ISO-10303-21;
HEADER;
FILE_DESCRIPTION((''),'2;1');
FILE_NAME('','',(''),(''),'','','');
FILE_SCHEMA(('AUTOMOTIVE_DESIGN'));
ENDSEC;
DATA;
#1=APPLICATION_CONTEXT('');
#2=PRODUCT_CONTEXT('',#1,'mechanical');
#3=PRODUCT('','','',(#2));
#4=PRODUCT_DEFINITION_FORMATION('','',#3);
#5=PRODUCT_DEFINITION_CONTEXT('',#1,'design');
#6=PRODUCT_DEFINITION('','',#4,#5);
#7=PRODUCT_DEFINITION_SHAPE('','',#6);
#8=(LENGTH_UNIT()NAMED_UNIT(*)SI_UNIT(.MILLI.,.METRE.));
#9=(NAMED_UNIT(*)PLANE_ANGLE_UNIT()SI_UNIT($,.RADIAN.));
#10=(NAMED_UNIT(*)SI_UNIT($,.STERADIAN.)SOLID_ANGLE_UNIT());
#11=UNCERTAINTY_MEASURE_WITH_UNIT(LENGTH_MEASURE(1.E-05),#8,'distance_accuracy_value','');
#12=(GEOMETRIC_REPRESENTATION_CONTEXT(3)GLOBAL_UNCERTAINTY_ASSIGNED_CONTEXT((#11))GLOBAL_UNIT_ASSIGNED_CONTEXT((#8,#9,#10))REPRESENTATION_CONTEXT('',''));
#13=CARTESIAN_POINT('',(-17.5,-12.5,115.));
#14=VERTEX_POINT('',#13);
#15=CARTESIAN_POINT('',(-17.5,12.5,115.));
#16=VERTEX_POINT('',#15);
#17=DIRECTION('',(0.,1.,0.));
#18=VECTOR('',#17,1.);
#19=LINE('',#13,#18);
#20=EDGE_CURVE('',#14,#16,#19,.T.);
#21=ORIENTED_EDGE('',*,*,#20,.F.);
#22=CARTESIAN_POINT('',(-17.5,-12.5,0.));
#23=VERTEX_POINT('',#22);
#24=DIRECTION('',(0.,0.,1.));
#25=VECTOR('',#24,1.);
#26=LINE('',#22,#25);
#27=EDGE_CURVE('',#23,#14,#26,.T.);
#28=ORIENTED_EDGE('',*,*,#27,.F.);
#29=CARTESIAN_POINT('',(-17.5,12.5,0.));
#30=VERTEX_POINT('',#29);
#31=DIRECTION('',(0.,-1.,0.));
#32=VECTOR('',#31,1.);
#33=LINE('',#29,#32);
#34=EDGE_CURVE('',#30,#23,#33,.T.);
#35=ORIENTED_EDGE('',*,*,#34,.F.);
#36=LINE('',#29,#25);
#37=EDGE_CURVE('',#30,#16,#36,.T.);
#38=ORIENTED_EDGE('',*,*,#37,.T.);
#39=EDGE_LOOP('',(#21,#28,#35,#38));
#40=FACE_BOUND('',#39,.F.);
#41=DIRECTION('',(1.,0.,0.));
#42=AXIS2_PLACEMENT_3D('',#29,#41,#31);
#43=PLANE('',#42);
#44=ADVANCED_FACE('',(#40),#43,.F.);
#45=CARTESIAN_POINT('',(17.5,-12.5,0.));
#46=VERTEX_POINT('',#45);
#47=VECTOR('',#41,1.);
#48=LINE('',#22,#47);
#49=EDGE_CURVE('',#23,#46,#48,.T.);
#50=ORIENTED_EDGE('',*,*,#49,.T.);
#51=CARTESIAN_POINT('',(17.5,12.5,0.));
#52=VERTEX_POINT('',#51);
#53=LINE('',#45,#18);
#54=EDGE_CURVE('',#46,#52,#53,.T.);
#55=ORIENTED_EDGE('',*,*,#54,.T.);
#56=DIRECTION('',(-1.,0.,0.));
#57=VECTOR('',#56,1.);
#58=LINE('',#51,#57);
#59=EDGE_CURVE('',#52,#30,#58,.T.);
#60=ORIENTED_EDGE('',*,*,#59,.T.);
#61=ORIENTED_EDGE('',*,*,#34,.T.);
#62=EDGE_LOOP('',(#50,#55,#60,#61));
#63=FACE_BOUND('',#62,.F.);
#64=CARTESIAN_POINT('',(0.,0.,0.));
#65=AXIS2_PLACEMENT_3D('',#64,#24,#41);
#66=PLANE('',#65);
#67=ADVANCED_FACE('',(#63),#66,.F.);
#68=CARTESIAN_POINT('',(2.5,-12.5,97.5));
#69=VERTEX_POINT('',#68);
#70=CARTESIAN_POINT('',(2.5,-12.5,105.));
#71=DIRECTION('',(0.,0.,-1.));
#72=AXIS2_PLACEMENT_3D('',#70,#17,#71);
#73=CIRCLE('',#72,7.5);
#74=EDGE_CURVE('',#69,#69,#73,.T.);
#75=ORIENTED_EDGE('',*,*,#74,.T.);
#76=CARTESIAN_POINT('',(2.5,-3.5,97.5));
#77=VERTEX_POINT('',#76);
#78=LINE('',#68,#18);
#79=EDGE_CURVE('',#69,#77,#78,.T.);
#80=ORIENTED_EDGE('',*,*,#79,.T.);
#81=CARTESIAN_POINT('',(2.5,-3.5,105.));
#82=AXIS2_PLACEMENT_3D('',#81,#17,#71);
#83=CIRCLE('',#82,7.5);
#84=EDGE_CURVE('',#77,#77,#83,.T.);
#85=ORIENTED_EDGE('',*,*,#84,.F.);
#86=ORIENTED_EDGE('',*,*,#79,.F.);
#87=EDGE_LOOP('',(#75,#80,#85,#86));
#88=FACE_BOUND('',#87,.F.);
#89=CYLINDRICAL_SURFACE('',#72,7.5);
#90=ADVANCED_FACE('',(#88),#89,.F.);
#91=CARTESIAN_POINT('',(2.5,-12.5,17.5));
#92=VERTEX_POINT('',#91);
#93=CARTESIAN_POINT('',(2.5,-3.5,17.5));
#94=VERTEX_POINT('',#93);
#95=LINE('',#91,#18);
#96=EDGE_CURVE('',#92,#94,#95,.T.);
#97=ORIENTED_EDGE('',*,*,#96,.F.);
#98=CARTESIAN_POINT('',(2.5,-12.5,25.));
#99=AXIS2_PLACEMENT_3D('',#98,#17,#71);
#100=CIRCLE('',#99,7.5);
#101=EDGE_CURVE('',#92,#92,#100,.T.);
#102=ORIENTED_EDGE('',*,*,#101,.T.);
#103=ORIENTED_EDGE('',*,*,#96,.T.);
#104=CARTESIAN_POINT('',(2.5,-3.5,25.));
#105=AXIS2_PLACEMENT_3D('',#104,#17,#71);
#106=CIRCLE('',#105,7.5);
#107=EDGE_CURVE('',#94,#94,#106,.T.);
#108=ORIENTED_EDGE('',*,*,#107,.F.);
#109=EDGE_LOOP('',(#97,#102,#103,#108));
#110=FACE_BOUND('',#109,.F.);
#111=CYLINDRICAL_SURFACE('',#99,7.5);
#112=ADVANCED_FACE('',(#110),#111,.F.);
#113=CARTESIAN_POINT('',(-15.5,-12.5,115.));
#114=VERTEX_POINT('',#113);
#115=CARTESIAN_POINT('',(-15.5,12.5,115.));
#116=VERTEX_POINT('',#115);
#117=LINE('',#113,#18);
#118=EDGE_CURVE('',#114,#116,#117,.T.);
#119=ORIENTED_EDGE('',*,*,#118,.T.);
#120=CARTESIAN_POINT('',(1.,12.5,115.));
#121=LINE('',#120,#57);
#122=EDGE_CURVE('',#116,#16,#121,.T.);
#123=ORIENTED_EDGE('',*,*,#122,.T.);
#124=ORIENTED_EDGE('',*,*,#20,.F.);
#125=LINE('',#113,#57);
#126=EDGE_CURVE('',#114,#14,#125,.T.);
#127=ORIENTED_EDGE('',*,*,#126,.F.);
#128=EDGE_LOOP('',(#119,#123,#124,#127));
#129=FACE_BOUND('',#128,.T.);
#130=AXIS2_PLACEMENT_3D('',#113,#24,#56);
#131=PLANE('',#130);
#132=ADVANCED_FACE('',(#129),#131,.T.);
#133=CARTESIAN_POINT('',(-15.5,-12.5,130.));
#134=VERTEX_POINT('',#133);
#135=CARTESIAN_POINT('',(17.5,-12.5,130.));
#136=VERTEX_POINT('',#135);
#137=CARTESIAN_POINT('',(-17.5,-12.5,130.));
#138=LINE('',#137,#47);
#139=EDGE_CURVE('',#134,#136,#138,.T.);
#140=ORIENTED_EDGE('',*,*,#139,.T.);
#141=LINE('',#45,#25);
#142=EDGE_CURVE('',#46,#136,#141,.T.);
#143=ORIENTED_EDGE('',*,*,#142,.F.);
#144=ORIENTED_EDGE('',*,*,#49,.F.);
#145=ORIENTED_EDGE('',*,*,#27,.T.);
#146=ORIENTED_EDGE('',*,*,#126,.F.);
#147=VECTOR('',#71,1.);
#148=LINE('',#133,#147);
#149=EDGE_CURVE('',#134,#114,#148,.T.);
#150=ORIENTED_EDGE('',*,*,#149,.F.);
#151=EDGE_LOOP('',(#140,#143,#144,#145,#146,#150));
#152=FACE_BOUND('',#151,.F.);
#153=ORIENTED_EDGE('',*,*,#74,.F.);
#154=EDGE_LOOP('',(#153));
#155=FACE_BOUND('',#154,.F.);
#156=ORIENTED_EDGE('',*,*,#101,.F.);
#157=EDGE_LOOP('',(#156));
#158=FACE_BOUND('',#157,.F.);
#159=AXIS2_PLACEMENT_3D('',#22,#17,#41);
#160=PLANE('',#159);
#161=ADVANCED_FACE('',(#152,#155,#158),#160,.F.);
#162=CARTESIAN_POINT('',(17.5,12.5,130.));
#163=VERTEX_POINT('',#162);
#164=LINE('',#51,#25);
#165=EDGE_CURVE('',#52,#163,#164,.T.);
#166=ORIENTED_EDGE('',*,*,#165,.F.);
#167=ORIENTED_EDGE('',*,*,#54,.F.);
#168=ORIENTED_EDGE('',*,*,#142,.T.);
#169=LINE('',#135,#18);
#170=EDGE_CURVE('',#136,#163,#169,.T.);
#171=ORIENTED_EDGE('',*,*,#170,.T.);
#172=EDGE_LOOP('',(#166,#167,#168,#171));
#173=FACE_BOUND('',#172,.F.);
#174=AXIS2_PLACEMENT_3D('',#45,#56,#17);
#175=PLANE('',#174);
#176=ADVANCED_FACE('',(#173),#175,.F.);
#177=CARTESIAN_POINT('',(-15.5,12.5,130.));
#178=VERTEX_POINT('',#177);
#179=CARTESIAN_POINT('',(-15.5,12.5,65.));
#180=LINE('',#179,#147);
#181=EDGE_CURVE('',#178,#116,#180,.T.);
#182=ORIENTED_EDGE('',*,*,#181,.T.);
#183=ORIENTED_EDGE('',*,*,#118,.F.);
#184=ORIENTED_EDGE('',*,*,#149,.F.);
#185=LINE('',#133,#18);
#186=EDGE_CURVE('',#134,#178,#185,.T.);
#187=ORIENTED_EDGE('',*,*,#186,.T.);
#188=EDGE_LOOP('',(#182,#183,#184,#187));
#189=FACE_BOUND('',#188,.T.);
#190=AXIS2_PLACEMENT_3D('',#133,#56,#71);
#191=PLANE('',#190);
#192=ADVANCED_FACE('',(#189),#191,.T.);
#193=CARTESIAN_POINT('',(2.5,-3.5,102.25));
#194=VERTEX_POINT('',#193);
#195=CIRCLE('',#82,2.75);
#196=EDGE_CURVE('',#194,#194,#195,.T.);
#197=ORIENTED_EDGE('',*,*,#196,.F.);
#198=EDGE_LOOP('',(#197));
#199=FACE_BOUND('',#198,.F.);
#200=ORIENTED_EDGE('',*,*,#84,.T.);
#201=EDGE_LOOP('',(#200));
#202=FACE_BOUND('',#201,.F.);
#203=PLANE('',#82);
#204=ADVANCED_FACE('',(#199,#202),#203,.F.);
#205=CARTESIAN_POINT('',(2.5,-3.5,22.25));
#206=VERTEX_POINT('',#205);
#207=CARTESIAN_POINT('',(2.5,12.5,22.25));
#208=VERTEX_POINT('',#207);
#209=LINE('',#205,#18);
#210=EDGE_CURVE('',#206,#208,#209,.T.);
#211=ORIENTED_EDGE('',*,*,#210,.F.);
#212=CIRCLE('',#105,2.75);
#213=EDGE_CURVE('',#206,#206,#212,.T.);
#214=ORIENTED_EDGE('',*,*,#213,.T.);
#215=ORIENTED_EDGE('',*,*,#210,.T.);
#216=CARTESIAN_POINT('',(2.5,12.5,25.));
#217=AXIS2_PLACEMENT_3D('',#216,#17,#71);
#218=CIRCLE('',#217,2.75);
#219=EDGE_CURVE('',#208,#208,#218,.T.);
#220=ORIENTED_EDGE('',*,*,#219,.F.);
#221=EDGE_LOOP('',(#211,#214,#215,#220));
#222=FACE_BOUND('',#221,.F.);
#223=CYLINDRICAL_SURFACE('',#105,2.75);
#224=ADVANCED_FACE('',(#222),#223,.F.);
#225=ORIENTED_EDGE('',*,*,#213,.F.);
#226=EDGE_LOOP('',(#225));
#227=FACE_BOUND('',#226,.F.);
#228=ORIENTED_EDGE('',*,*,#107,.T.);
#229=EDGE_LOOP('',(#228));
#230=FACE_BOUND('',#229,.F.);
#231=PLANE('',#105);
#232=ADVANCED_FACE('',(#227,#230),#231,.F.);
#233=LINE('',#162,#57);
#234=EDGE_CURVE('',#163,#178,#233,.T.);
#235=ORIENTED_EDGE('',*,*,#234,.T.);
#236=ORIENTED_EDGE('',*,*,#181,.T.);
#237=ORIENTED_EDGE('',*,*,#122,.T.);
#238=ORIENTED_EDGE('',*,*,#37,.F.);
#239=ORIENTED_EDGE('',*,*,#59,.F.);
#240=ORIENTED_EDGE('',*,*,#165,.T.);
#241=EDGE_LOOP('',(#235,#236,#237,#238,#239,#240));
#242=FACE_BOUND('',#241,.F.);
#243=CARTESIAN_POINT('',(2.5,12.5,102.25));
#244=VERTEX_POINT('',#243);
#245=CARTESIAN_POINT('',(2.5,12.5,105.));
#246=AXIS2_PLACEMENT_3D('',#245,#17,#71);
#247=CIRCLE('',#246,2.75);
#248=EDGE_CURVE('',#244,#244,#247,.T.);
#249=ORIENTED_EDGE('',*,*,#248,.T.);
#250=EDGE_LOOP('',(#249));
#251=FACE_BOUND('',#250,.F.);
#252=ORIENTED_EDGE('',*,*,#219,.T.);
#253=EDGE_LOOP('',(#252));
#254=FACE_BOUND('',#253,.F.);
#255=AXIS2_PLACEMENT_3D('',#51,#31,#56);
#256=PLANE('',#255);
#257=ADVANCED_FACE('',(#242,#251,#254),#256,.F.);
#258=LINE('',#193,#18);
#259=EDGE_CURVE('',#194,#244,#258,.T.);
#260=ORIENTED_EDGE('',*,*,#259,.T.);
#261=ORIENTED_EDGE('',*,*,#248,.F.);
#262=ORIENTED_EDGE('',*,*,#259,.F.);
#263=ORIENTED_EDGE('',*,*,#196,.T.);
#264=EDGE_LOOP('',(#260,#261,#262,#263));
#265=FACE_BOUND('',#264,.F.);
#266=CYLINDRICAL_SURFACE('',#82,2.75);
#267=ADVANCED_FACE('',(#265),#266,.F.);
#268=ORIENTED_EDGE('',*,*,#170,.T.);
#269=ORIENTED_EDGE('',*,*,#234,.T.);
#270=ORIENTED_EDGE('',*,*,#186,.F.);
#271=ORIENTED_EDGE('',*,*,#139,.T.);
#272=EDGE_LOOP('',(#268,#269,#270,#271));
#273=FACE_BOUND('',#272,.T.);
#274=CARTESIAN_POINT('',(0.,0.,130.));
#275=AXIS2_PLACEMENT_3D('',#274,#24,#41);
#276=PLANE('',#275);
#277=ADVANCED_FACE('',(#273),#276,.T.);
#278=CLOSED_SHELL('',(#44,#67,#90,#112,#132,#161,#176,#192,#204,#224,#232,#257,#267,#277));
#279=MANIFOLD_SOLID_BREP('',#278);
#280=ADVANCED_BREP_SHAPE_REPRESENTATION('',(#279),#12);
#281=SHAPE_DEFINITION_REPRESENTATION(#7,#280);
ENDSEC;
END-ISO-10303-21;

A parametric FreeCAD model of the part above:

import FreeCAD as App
import Part
import Sketcher

V = App.Vector

doc = App.newDocument("Part")
params = doc.addObject("Spreadsheet::Sheet", "Params")
for row, (alias, value) in enumerate([
    ("sketch1_width", "35 mm"),
    ("sketch1_height", "25 mm"),
    ("pad1_length", "130 mm"),
    ("sketch2_width", "2 mm"),
    ("sketch2_height", "15 mm"),
    ("sketch3_diameter", "5.5 mm"),
    ("hole_diameter", "5.5 mm"),
    ("hole_cbore_diameter", "15 mm"),
    ("hole_cbore_depth", "9 mm"),
], start=1):
    params.set(f"A{row}", alias)
    params.set(f"B{row}", "=" + value)
    params.setAlias(f"B{row}", alias)

body = doc.addObject("PartDesign::Body", "Body")

sketch1 = body.newObject("Sketcher::SketchObject", "Sketch")
sketch1.AttachmentSupport = (doc.getObject("XY_Plane"), [""])
sketch1.MapMode = "FlatFace"
sketch1.addGeometry(Part.LineSegment(V(-17.5, 12.5, 0), V(-17.5, -12.5, 0)), False)
sketch1.addGeometry(Part.LineSegment(V(-17.5, -12.5, 0), V(17.5, -12.5, 0)), False)
sketch1.addGeometry(Part.LineSegment(V(17.5, -12.5, 0), V(17.5, 12.5, 0)), False)
sketch1.addGeometry(Part.LineSegment(V(17.5, 12.5, 0), V(-17.5, 12.5, 0)), False)
sketch1.addConstraint(Sketcher.Constraint("Coincident", 0, 2, 1, 1))
sketch1.addConstraint(Sketcher.Constraint("Coincident", 1, 2, 2, 1))
sketch1.addConstraint(Sketcher.Constraint("Coincident", 2, 2, 3, 1))
sketch1.addConstraint(Sketcher.Constraint("Coincident", 3, 2, 0, 1))
sketch1.addConstraint(Sketcher.Constraint("Vertical", 0))
sketch1.addConstraint(Sketcher.Constraint("Horizontal", 1))
sketch1.addConstraint(Sketcher.Constraint("Vertical", 2))
sketch1.addConstraint(Sketcher.Constraint("Horizontal", 3))
sketch1.addConstraint(Sketcher.Constraint("Symmetric", 0, 2, 2, 2, -1, 1))
sketch1.addConstraint(Sketcher.Constraint("DistanceX", 1, 1, 1, 2, 35.0))
sketch1.addConstraint(Sketcher.Constraint("DistanceY", 0, 2, 0, 1, 25.0))
sketch1.setExpression("Constraints[9]", "Params.sketch1_width")
sketch1.setExpression("Constraints[10]", "Params.sketch1_height")
pad1 = body.newObject("PartDesign::Pad", "Pad")
pad1.Profile = sketch1
pad1.setExpression("Length", "Params.pad1_length")

sketch2 = body.newObject("Sketcher::SketchObject", "Sketch001")
sketch2.AttachmentSupport = (doc.getObject("XZ_Plane"), [""])
sketch2.MapMode = "FlatFace"
sketch2.AttachmentOffset = App.Placement(V(0, 0, 12.5), App.Rotation())
sketch2.addGeometry(Part.LineSegment(V(-17.5, 115, 0), V(-15.5, 115, 0)), False)
sketch2.addGeometry(Part.LineSegment(V(-15.5, 115, 0), V(-15.5, 130, 0)), False)
sketch2.addGeometry(Part.LineSegment(V(-15.5, 130, 0), V(-17.5, 130, 0)), False)
sketch2.addGeometry(Part.LineSegment(V(-17.5, 130, 0), V(-17.5, 115, 0)), False)
sketch2.addConstraint(Sketcher.Constraint("Coincident", 0, 2, 1, 1))
sketch2.addConstraint(Sketcher.Constraint("Coincident", 1, 2, 2, 1))
sketch2.addConstraint(Sketcher.Constraint("Coincident", 2, 2, 3, 1))
sketch2.addConstraint(Sketcher.Constraint("Coincident", 3, 2, 0, 1))
sketch2.addConstraint(Sketcher.Constraint("Horizontal", 0))
sketch2.addConstraint(Sketcher.Constraint("Vertical", 1))
sketch2.addConstraint(Sketcher.Constraint("Horizontal", 2))
sketch2.addConstraint(Sketcher.Constraint("Vertical", 3))
sketch2.addConstraint(Sketcher.Constraint("DistanceX", 0, 1, 0, 2, 2.0))
sketch2.addConstraint(Sketcher.Constraint("DistanceY", 1, 1, 1, 2, 15.0))
sketch2.addConstraint(Sketcher.Constraint("DistanceY", -1, 1, 0, 2, 115.0))
sketch2.addConstraint(Sketcher.Constraint("DistanceX", 0, 2, -1, 1, 15.5))
sketch2.setExpression("Constraints[8]", "Params.sketch2_width")
sketch2.setExpression("Constraints[9]", "Params.sketch2_height")
pocket1 = body.newObject("PartDesign::Pocket", "Pocket")
pocket1.Profile = sketch2
pocket1.Type = "ThroughAll"

sketch3 = body.newObject("Sketcher::SketchObject", "Sketch002")
sketch3.AttachmentSupport = (doc.getObject("XZ_Plane"), [""])
sketch3.MapMode = "FlatFace"
sketch3.AttachmentOffset = App.Placement(V(0, 0, 12.5), App.Rotation())
sketch3.addGeometry(Part.Circle(V(2.5, 105, 0), V(0, 0, 1), 2.75), False)
sketch3.addGeometry(Part.Circle(V(2.5, 25, 0), V(0, 0, 1), 2.75), False)
sketch3.addConstraint(Sketcher.Constraint("Equal", 0, 1))
sketch3.addConstraint(Sketcher.Constraint("Vertical", 0, 3, 1, 3))
sketch3.addConstraint(Sketcher.Constraint("Diameter", 0, 5.5))
sketch3.addConstraint(Sketcher.Constraint("DistanceY", -1, 1, 0, 3, 105.0))
sketch3.addConstraint(Sketcher.Constraint("DistanceY", -1, 1, 1, 3, 25.0))
sketch3.addConstraint(Sketcher.Constraint("DistanceX", -1, 1, 0, 3, 2.5))
sketch3.setExpression("Constraints[2]", "Params.sketch3_diameter")
doc.recompute()
hole = body.newObject("PartDesign::Hole", "Hole")
hole.Profile = sketch3
hole.ThreadType = "None"
hole.setExpression("Diameter", "Params.hole_diameter")
hole.DepthType = "ThroughAll"
hole.HoleCutType = "Counterbore"
hole.setExpression("HoleCutDiameter", "Params.hole_cbore_diameter")
hole.setExpression("HoleCutDepth", "Params.hole_cbore_depth")

doc.recompute()
